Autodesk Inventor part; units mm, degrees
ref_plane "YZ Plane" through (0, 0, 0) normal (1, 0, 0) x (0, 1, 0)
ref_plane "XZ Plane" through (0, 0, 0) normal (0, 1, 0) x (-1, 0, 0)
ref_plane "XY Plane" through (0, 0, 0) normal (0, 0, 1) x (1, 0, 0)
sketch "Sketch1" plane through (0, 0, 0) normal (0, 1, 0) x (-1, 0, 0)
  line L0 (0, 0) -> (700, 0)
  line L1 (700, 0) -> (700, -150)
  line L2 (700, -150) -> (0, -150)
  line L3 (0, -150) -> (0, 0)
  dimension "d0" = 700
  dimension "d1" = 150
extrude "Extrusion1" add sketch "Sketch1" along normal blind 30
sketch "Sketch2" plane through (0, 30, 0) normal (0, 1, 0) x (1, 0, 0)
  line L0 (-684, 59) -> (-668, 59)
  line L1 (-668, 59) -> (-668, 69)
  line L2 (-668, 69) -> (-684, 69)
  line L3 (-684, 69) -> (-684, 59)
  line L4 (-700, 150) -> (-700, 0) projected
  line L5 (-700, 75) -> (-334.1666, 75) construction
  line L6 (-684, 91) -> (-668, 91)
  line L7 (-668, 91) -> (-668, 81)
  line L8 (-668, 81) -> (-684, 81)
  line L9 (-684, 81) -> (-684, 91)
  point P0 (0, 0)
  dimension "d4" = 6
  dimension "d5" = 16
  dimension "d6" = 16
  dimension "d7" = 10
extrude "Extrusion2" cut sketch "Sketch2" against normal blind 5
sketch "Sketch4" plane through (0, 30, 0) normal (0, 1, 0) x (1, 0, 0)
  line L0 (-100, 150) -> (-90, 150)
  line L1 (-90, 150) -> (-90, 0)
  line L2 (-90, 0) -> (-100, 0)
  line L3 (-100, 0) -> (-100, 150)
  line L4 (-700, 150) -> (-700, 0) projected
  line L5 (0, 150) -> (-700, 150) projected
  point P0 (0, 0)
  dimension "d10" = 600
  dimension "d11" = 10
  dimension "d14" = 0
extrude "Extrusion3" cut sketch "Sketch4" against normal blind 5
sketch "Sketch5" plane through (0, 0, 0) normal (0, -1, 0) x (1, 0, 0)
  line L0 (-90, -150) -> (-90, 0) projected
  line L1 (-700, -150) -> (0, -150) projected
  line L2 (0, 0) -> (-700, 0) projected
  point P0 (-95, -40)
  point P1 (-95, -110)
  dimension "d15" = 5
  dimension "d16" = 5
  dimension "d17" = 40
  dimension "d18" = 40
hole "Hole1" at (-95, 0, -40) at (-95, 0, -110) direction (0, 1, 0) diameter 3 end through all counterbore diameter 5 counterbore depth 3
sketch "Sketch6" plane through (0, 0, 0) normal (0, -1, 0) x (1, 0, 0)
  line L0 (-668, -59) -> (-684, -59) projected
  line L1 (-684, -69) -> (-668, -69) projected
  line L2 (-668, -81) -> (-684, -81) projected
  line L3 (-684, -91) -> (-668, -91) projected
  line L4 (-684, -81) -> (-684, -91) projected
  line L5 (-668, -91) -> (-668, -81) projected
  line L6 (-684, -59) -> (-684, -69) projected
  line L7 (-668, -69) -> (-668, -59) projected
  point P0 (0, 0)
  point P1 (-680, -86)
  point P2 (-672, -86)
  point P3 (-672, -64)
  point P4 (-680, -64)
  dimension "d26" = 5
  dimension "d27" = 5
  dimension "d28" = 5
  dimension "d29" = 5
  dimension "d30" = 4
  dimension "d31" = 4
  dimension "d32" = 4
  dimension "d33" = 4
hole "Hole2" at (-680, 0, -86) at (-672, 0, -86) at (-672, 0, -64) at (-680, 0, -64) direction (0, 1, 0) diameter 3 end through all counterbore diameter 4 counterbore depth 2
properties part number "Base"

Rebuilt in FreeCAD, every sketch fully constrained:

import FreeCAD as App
import Part
import Sketcher
from FreeCAD import Vector
Q = App.Units.Quantity


def add_polygon(sketch, points):
    """Adds a closed chain of lines whose ends are joined by coincident constraints."""
    first, n = sketch.GeometryCount, len(points)
    for a, b in zip(points, points[1:] + points[:1]):
        sketch.addGeometry(Part.LineSegment(App.Vector(*a, 0), App.Vector(*b, 0)), False)
    for i in range(n):
        sketch.addConstraint(Sketcher.Constraint("Coincident", first + i, 2, first + (i + 1) % n, 1))

doc = App.newDocument("Part")
params = doc.addObject("Spreadsheet::Sheet", "Params")
for row, (alias, value) in enumerate([
    ("sketch1_width", "700 mm"),
    ("sketch1_height", "150 mm"),
    ("pad1_length", "30 mm"),
    ("sketch2_width", "16 mm"),
    ("sketch2_height", "10 mm"),
    ("pocket1_length", "5 mm"),
    ("sketch3_width", "10 mm"),
    ("sketch3_height", "150 mm"),
    ("pocket2_length", "5 mm"),
    ("sketch4_diameter", "3 mm"),
    ("hole_diameter", "3 mm"),
    ("hole_cbore_diameter", "5 mm"),
    ("hole_cbore_depth", "3 mm"),
    ("sketch5_diameter", "3 mm"),
    ("hole2_diameter", "3 mm"),
    ("hole2_cbore_diameter", "4 mm"),
    ("hole2_cbore_depth", "2 mm"),
], start=1):
    params.set(f"A{row}", alias)
    params.set(f"B{row}", "=" + value)
    params.setAlias(f"B{row}", alias)

body = doc.addObject("PartDesign::Body", "Body")

# Sketch on XZ plane
sketch1 = body.newObject("Sketcher::SketchObject", "Sketch")
sketch1.AttachmentSupport = (doc.getObject("XZ_Plane"), [""])
sketch1.MapMode = "FlatFace"
add_polygon(sketch1, [(-700, 0), (0, 0), (0, -150), (-700, -150)])  # lines 0-3
sketch1.addConstraint(Sketcher.Constraint("Horizontal", 0))
sketch1.addConstraint(Sketcher.Constraint("Vertical", 1))
sketch1.addConstraint(Sketcher.Constraint("Horizontal", 2))
sketch1.addConstraint(Sketcher.Constraint("Vertical", 3))
sketch1.addConstraint(Sketcher.Constraint("Coincident", 0, 2, -1, 1))
sketch1.addConstraint(Sketcher.Constraint("DistanceX", 0, 1, 0, 2, Q("700 mm")))
sketch1.addConstraint(Sketcher.Constraint("DistanceY", 1, 2, 1, 1, Q("150 mm")))
sketch1.setExpression("Constraints[9]", "Params.sketch1_width")
sketch1.setExpression("Constraints[10]", "Params.sketch1_height")
pad1 = body.newObject("PartDesign::Pad", "Pad")
pad1.Profile = sketch1
pad1.setExpression("Length", "Params.pad1_length")
pad1.Reversed = True

# Sketch on XZ plane
sketch2 = body.newObject("Sketcher::SketchObject", "Sketch001")
sketch2.AttachmentSupport = (doc.getObject("XZ_Plane"), [""])
sketch2.MapMode = "FlatFace"
sketch2.AttachmentOffset = App.Placement(Vector(0, 0, -30), App.Rotation())
add_polygon(sketch2, [(-684, -69), (-684, -59), (-668, -59), (-668, -69)])  # lines 0-3
add_polygon(sketch2, [(-668, -91), (-684, -91), (-684, -81), (-668, -81)])  # lines 4-7
sketch2.addConstraint(Sketcher.Constraint("Vertical", 0))
sketch2.addConstraint(Sketcher.Constraint("Horizontal", 1))
sketch2.addConstraint(Sketcher.Constraint("Vertical", 2))
sketch2.addConstraint(Sketcher.Constraint("Horizontal", 3))
sketch2.addConstraint(Sketcher.Constraint("Horizontal", 4))
sketch2.addConstraint(Sketcher.Constraint("Vertical", 5))
sketch2.addConstraint(Sketcher.Constraint("Horizontal", 6))
sketch2.addConstraint(Sketcher.Constraint("Vertical", 7))
sketch2.addConstraint(Sketcher.Constraint("Vertical", 3, 2, 4, 2))
sketch2.addConstraint(Sketcher.Constraint("Vertical", 2, 2, 6, 2))
sketch2.addConstraint(Sketcher.Constraint("Equal", 2, 5))
sketch2.addConstraint(Sketcher.Constraint("DistanceX", 1, 1, 1, 2, Q("16 mm")))
sketch2.addConstraint(Sketcher.Constraint("DistanceY", 0, 1, 0, 2, Q("10 mm")))
sketch2.addConstraint(Sketcher.Constraint("DistanceX", 0, 2, -1, 1, Q("684 mm")))
sketch2.addConstraint(Sketcher.Constraint("DistanceY", 0, 2, -1, 1, Q("59 mm")))
sketch2.addConstraint(Sketcher.Constraint("DistanceY", 4, 2, -1, 1, Q("91 mm")))
sketch2.setExpression("Constraints[19]", "Params.sketch2_width")
sketch2.setExpression("Constraints[20]", "Params.sketch2_height")
pocket1 = body.newObject("PartDesign::Pocket", "Pocket")
pocket1.Profile = sketch2
pocket1.setExpression("Length", "Params.pocket1_length")
pocket1.Reversed = True

# Sketch on XZ plane
sketch3 = body.newObject("Sketcher::SketchObject", "Sketch002")
sketch3.AttachmentSupport = (doc.getObject("XZ_Plane"), [""])
sketch3.MapMode = "FlatFace"
sketch3.AttachmentOffset = App.Placement(Vector(0, 0, -30), App.Rotation())
add_polygon(sketch3, [(-90, -150), (-100, -150), (-100, 0), (-90, 0)])  # lines 0-3
sketch3.addConstraint(Sketcher.Constraint("Horizontal", 0))
sketch3.addConstraint(Sketcher.Constraint("Vertical", 1))
sketch3.addConstraint(Sketcher.Constraint("Horizontal", 2))
sketch3.addConstraint(Sketcher.Constraint("Vertical", 3))
sketch3.addConstraint(Sketcher.Constraint("PointOnObject", 1, 2, -1))
sketch3.addConstraint(Sketcher.Constraint("DistanceX", 0, 2, 0, 1, Q("10 mm")))
sketch3.addConstraint(Sketcher.Constraint("DistanceY", 1, 1, 1, 2, Q("150 mm")))
sketch3.addConstraint(Sketcher.Constraint("DistanceX", 0, 2, -1, 1, Q("100 mm")))
sketch3.setExpression("Constraints[9]", "Params.sketch3_width")
sketch3.setExpression("Constraints[10]", "Params.sketch3_height")
pocket2 = body.newObject("PartDesign::Pocket", "Pocket001")
pocket2.Profile = sketch3
pocket2.setExpression("Length", "Params.pocket2_length")
pocket2.Reversed = True

# Sketch on XZ plane
sketch4 = body.newObject("Sketcher::SketchObject", "Sketch003")
sketch4.AttachmentSupport = (doc.getObject("XZ_Plane"), [""])
sketch4.MapMode = "FlatFace"
sketch4.addGeometry(Part.Circle(Vector(-95, -40, 0), Vector(0, 0, 1), 1.5), False)
sketch4.addGeometry(Part.Circle(Vector(-95, -110, 0), Vector(0, 0, 1), 1.5), False)
sketch4.addConstraint(Sketcher.Constraint("Equal", 0, 1))
sketch4.addConstraint(Sketcher.Constraint("Vertical", 0, 3, 1, 3))
sketch4.addConstraint(Sketcher.Constraint("Diameter", 0, Q("3 mm")))
sketch4.addConstraint(Sketcher.Constraint("DistanceX", 0, 3, -1, 1, Q("95 mm")))
sketch4.addConstraint(Sketcher.Constraint("DistanceY", 0, 3, -1, 1, Q("40 mm")))
sketch4.addConstraint(Sketcher.Constraint("DistanceY", 1, 3, -1, 1, Q("110 mm")))
sketch4.setExpression("Constraints[2]", "Params.sketch4_diameter")
doc.recompute()
hole = body.newObject("PartDesign::Hole", "Hole")
hole.Profile = sketch4
hole.ThreadType = "None"
hole.setExpression("Diameter", "Params.hole_diameter")
hole.DepthType = "ThroughAll"
hole.HoleCutType = "Counterbore"
hole.setExpression("HoleCutDiameter", "Params.hole_cbore_diameter")
hole.setExpression("HoleCutDepth", "Params.hole_cbore_depth")

# Sketch on XZ plane
sketch5 = body.newObject("Sketcher::SketchObject", "Sketch004")
sketch5.AttachmentSupport = (doc.getObject("XZ_Plane"), [""])
sketch5.MapMode = "FlatFace"
sketch5.addGeometry(Part.Circle(Vector(-680, -86, 0), Vector(0, 0, 1), 1.5), False)
sketch5.addGeometry(Part.Circle(Vector(-672, -86, 0), Vector(0, 0, 1), 1.5), False)
sketch5.addGeometry(Part.Circle(Vector(-672, -64, 0), Vector(0, 0, 1), 1.5), False)
sketch5.addGeometry(Part.Circle(Vector(-680, -64, 0), Vector(0, 0, 1), 1.5), False)
sketch5.addConstraint(Sketcher.Constraint("Equal", 0, 1))
sketch5.addConstraint(Sketcher.Constraint("Equal", 1, 2))
sketch5.addConstraint(Sketcher.Constraint("Equal", 2, 3))
sketch5.addConstraint(Sketcher.Constraint("Horizontal", 0, 3, 1, 3))
sketch5.addConstraint(Sketcher.Constraint("Horizontal", 2, 3, 3, 3))
sketch5.addConstraint(Sketcher.Constraint("Vertical", 1, 3, 2, 3))
sketch5.addConstraint(Sketcher.Constraint("Vertical", 0, 3, 3, 3))
sketch5.addConstraint(Sketcher.Constraint("Diameter", 0, Q("3 mm")))
sketch5.addConstraint(Sketcher.Constraint("DistanceX", 0, 3, -1, 1, Q("680 mm")))
sketch5.addConstraint(Sketcher.Constraint("DistanceY", 0, 3, -1, 1, Q("86 mm")))
sketch5.addConstraint(Sketcher.Constraint("DistanceX", 1, 3, -1, 1, Q("672 mm")))
sketch5.addConstraint(Sketcher.Constraint("DistanceY", 2, 3, -1, 1, Q("64 mm")))
sketch5.setExpression("Constraints[7]", "Params.sketch5_diameter")
doc.recompute()
hole2 = body.newObject("PartDesign::Hole", "Hole001")
hole2.Profile = sketch5
hole2.ThreadType = "None"
hole2.setExpression("Diameter", "Params.hole2_diameter")
hole2.DepthType = "ThroughAll"
hole2.HoleCutType = "Counterbore"
hole2.setExpression("HoleCutDiameter", "Params.hole2_cbore_diameter")
hole2.setExpression("HoleCutDepth", "Params.hole2_cbore_depth")

doc.recompute()
